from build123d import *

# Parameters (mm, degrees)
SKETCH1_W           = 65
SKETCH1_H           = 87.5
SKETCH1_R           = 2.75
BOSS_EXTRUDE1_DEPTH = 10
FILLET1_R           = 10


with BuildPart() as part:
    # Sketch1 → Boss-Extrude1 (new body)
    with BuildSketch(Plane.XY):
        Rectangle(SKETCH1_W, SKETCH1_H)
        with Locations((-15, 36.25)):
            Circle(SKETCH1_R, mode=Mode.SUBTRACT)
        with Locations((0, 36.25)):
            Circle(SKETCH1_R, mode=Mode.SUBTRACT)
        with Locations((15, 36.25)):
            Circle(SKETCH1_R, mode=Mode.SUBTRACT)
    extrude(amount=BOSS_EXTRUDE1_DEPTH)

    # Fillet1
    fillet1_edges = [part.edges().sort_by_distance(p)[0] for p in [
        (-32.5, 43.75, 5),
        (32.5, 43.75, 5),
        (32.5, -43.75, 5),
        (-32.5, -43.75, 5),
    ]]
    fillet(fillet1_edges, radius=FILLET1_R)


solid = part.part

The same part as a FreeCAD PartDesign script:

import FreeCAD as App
import Part
import Sketcher
from FreeCAD import Vector


def edges_at(feature, points):
    """Names of the edges that pass closest to the given points."""
    edges = feature.Shape.Edges
    near = lambda p: min(range(len(edges)), key=lambda i: edges[i].distToShape(Part.Vertex(*p))[0])
    return sorted({f"Edge{near(p) + 1}" for p in points})

doc = App.newDocument("Part")
params = doc.addObject("Spreadsheet::Sheet", "Params")
for row, (alias, value) in enumerate([
    ("sketch1_diameter", "5.5 mm"),
    ("sketch1_width", "65 mm"),
    ("sketch1_height", "87.5 mm"),
    ("pad1_length", "10 mm"),
    ("fillet_radius", "10 mm"),
], start=1):
    params.set(f"A{row}", alias)
    params.set(f"B{row}", "=" + value)
    params.setAlias(f"B{row}", alias)

body = doc.addObject("PartDesign::Body", "Body")

# Sketch on XY plane
sketch1 = body.newObject("Sketcher::SketchObject", "Sketch")
sketch1.AttachmentSupport = (doc.getObject("XY_Plane"), [""])
sketch1.MapMode = "FlatFace"
sketch1.addGeometry([
    Part.LineSegment(Vector(-32.5, 43.8, 0), Vector(-32.5, -43.8, 0)),  # 0
    Part.LineSegment(Vector(-32.5, -43.8, 0), Vector(32.5, -43.8, 0)),  # 1
    Part.LineSegment(Vector(32.5, -43.8, 0), Vector(32.5, 43.8, 0)),  # 2
    Part.LineSegment(Vector(32.5, 43.8, 0), Vector(-32.5, 43.8, 0)),  # 3
    Part.Circle(Vector(-15, 36.2, 0), Vector(0, 0, 1), 2.8),  # 4
    Part.Circle(Vector(0, 36.2, 0), Vector(0, 0, 1), 2.8),  # 5
    Part.Circle(Vector(15, 36.2, 0), Vector(0, 0, 1), 2.8),  # 6
], False)
sketch1.addConstraint([
    Sketcher.Constraint("Coincident", 0, 2, 1, 1),
    Sketcher.Constraint("Coincident", 1, 2, 2, 1),
    Sketcher.Constraint("Coincident", 2, 2, 3, 1),
    Sketcher.Constraint("Coincident", 3, 2, 0, 1),
    Sketcher.Constraint("Vertical", 0),
    Sketcher.Constraint("Horizontal", 1),
    Sketcher.Constraint("Vertical", 2),
    Sketcher.Constraint("Horizontal", 3),
    Sketcher.Constraint("Equal", 4, 5),
    Sketcher.Constraint("Equal", 5, 6),
    Sketcher.Constraint("Symmetric", 0, 2, 2, 2, -1, 1),
    Sketcher.Constraint("Symmetric", 4, 3, 6, 3, -2),
    Sketcher.Constraint("PointOnObject", 5, 3, -2),
    Sketcher.Constraint("Horizontal", 4, 3, 5, 3),
    Sketcher.Constraint("Diameter", 4, 5.5),
    Sketcher.Constraint("DistanceX", 1, 1, 1, 2, 65.0),
    Sketcher.Constraint("DistanceY", 0, 2, 0, 1, 87.5),
    Sketcher.Constraint("DistanceX", 4, 3, -1, 1, 15.0),
    Sketcher.Constraint("DistanceY", 0, 2, 4, 3, 80.0),
])
sketch1.setExpression("Constraints[14]", "Params.sketch1_diameter")
sketch1.setExpression("Constraints[15]", "Params.sketch1_width")
sketch1.setExpression("Constraints[16]", "Params.sketch1_height")
pad1 = body.newObject("PartDesign::Pad", "Pad")
pad1.Profile = sketch1
pad1.setExpression("Length", "Params.pad1_length")
doc.recompute()

fillet = body.newObject("PartDesign::Fillet", "Fillet")
fillet.Base = (pad1, edges_at(pad1, [
    (-32.5, 43.75, 5),
    (32.5, 43.75, 5),
    (32.5, -43.75, 5),
    (-32.5, -43.75, 5),
]))
fillet.setExpression("Radius", "Params.fillet_radius")

doc.recompute()
